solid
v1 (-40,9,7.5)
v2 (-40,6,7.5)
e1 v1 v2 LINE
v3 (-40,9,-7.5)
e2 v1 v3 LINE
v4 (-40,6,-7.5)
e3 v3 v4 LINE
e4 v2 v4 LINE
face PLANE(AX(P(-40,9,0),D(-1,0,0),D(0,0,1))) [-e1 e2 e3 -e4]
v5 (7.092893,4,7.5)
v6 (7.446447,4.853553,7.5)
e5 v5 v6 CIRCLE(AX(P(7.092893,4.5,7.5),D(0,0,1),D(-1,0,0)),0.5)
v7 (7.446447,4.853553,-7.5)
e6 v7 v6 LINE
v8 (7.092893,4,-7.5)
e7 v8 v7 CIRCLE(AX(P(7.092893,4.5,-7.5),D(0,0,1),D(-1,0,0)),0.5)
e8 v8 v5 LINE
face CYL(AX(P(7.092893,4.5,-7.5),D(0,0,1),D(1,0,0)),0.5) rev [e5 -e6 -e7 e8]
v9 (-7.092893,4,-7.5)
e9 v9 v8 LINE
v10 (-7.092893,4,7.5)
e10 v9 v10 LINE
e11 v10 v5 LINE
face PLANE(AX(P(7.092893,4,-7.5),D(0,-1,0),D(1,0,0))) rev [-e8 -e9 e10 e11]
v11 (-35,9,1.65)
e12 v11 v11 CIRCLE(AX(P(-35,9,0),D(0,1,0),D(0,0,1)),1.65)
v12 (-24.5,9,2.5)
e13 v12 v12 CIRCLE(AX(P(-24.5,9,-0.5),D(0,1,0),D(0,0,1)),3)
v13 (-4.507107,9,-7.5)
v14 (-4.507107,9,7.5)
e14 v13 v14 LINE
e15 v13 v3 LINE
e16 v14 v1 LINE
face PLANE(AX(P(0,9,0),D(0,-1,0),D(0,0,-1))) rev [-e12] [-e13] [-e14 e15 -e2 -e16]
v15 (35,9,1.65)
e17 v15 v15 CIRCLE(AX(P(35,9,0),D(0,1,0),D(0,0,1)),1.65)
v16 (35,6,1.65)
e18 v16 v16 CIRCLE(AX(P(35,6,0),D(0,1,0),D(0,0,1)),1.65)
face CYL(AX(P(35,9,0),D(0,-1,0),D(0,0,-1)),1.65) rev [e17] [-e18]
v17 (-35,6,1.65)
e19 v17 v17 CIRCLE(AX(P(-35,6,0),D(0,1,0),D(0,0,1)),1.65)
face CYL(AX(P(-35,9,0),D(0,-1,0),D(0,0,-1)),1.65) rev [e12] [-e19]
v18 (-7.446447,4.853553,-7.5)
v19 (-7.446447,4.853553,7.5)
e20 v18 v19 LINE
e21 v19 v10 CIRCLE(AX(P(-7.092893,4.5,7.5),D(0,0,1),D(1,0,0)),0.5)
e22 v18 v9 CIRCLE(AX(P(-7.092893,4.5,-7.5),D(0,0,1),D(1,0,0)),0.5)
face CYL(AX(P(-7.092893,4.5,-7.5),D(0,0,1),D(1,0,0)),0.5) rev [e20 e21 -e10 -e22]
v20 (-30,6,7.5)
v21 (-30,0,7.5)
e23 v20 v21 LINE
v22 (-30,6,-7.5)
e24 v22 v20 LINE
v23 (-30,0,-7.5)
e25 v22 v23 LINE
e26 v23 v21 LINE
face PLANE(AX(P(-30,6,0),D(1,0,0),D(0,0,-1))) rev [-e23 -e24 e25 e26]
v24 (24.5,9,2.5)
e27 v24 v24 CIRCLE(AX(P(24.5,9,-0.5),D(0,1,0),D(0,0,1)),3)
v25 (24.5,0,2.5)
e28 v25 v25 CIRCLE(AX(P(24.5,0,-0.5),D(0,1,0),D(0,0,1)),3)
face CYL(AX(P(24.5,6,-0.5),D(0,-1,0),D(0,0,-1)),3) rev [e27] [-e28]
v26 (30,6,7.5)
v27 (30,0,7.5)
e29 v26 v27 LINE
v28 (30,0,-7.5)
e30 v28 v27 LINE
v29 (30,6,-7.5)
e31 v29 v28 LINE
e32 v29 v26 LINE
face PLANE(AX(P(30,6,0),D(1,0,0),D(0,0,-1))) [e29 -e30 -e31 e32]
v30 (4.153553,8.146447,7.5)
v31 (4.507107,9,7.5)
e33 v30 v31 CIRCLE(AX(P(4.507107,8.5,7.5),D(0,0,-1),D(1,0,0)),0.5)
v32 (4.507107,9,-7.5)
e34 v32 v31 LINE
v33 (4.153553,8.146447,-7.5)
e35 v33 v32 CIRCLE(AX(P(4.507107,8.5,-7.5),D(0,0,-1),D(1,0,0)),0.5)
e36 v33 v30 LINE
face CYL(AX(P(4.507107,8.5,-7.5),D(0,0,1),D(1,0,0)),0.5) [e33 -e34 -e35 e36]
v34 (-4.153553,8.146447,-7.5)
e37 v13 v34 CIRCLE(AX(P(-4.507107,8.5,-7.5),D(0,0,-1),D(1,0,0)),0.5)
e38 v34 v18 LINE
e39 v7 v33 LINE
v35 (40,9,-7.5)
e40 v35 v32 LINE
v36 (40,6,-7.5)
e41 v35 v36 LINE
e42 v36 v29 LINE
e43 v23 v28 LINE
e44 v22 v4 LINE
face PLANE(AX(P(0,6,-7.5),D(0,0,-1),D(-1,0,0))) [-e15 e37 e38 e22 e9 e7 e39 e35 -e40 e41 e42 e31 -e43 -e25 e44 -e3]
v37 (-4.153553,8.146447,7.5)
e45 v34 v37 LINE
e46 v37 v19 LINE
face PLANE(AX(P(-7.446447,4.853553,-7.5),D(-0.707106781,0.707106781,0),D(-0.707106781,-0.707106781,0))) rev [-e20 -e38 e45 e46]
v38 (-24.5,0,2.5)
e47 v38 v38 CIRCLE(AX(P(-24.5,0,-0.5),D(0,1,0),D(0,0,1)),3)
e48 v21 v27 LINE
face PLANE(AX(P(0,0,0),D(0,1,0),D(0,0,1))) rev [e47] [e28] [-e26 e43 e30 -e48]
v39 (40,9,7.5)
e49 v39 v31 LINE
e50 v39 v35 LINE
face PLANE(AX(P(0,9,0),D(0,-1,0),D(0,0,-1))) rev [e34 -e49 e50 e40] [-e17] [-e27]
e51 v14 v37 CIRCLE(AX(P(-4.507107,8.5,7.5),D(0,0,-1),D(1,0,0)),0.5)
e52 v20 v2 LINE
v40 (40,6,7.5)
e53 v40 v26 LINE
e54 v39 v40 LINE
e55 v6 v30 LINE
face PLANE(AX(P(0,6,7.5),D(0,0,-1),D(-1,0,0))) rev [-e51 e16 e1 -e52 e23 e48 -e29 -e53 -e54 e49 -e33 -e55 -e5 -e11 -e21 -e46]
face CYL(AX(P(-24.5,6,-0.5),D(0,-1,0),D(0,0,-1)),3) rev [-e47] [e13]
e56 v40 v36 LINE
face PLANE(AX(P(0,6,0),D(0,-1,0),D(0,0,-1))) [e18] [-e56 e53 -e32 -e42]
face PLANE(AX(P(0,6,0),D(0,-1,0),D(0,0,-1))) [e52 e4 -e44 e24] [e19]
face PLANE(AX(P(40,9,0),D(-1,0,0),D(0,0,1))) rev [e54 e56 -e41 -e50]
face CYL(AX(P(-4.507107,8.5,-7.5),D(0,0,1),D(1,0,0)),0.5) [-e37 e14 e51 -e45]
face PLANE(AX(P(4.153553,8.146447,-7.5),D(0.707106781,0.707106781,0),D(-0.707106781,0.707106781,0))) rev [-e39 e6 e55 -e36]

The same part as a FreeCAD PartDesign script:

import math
import FreeCAD as App
import Part
import Sketcher

V = App.Vector

doc = App.newDocument("Part")
params = doc.addObject("Spreadsheet::Sheet", "Params")
for row, (alias, value) in enumerate([
    ("sketch1_diameter", "6 mm"),
    ("sketch1_width", "60 mm"),
    ("sketch1_height", "15 mm"),
    ("pad1_length", "6 mm"),
    ("sketch2_diameter", "6 mm"),
    ("sketch2_diameter2", "3.3 mm"),
    ("sketch2_width", "80 mm"),
    ("sketch2_height", "15 mm"),
    ("pad2_length", "3 mm"),
    ("sketch3_radius", "0.5 mm"),
], start=1):
    params.set(f"A{row}", alias)
    params.set(f"B{row}", "=" + value)
    params.setAlias(f"B{row}", alias)

body = doc.addObject("PartDesign::Body", "Body")

# Sketch on XZ plane
sketch1 = body.newObject("Sketcher::SketchObject", "Sketch")
sketch1.AttachmentSupport = (doc.getObject("XZ_Plane"), [""])
sketch1.MapMode = "FlatFace"
sketch1.addGeometry(Part.LineSegment(V(-30, -7.5, 0), V(-30, 7.5, 0)), False)
sketch1.addGeometry(Part.LineSegment(V(-30, 7.5, 0), V(30, 7.5, 0)), False)
sketch1.addGeometry(Part.LineSegment(V(30, 7.5, 0), V(30, -7.5, 0)), False)
sketch1.addGeometry(Part.LineSegment(V(30, -7.5, 0), V(-30, -7.5, 0)), False)
sketch1.addGeometry(Part.Circle(V(-24.5, -0.5, 0), V(0, 0, 1), 3), False)
sketch1.addGeometry(Part.Circle(V(24.5, -0.5, 0), V(0, 0, 1), 3), False)
sketch1.addConstraint(Sketcher.Constraint("Coincident", 0, 2, 1, 1))
sketch1.addConstraint(Sketcher.Constraint("Coincident", 1, 2, 2, 1))
sketch1.addConstraint(Sketcher.Constraint("Coincident", 2, 2, 3, 1))
sketch1.addConstraint(Sketcher.Constraint("Coincident", 3, 2, 0, 1))
sketch1.addConstraint(Sketcher.Constraint("Vertical", 0))
sketch1.addConstraint(Sketcher.Constraint("Horizontal", 1))
sketch1.addConstraint(Sketcher.Constraint("Vertical", 2))
sketch1.addConstraint(Sketcher.Constraint("Horizontal", 3))
sketch1.addConstraint(Sketcher.Constraint("Equal", 4, 5))
sketch1.addConstraint(Sketcher.Constraint("Symmetric", 0, 2, 2, 2, -1, 1))
sketch1.addConstraint(Sketcher.Constraint("Symmetric", 4, 3, 5, 3, -2))
sketch1.addConstraint(Sketcher.Constraint("Diameter", 4, 6.0))
sketch1.addConstraint(Sketcher.Constraint("DistanceX", 1, 1, 1, 2, 60.0))
sketch1.addConstraint(Sketcher.Constraint("DistanceY", 0, 1, 0, 2, 15.0))
sketch1.addConstraint(Sketcher.Constraint("DistanceX", 4, 3, 5, 3, 49.0))
sketch1.addConstraint(Sketcher.Constraint("DistanceY", 4, 3, 0, 2, 8.0))
sketch1.setExpression("Constraints[11]", "Params.sketch1_diameter")
sketch1.setExpression("Constraints[12]", "Params.sketch1_width")
sketch1.setExpression("Constraints[13]", "Params.sketch1_height")
pad1 = body.newObject("PartDesign::Pad", "Pad")
pad1.Profile = sketch1
pad1.setExpression("Length", "Params.pad1_length")
pad1.Reversed = True

# Sketch on XZ plane
sketch2 = body.newObject("Sketcher::SketchObject", "Sketch001")
sketch2.AttachmentSupport = (doc.getObject("XZ_Plane"), [""])
sketch2.MapMode = "FlatFace"
sketch2.AttachmentOffset = App.Placement(V(0, 0, -6), App.Rotation())
sketch2.addGeometry(Part.LineSegment(V(-40, -7.5, 0), V(-40, 7.5, 0)), False)
sketch2.addGeometry(Part.LineSegment(V(-40, 7.5, 0), V(40, 7.5, 0)), False)
sketch2.addGeometry(Part.LineSegment(V(40, 7.5, 0), V(40, -7.5, 0)), False)
sketch2.addGeometry(Part.LineSegment(V(40, -7.5, 0), V(-40, -7.5, 0)), False)
sketch2.addGeometry(Part.Circle(V(-35, 0, 0), V(0, 0, 1), 1.6), False)
sketch2.addGeometry(Part.Circle(V(35, 0, 0), V(0, 0, 1), 1.6), False)
sketch2.addGeometry(Part.Circle(V(-24.5, -0.5, 0), V(0, 0, 1), 3), False)
sketch2.addGeometry(Part.Circle(V(24.5, -0.5, 0), V(0, 0, 1), 3), False)
sketch2.addConstraint(Sketcher.Constraint("Coincident", 0, 2, 1, 1))
sketch2.addConstraint(Sketcher.Constraint("Coincident", 1, 2, 2, 1))
sketch2.addConstraint(Sketcher.Constraint("Coincident", 2, 2, 3, 1))
sketch2.addConstraint(Sketcher.Constraint("Coincident", 3, 2, 0, 1))
sketch2.addConstraint(Sketcher.Constraint("Vertical", 0))
sketch2.addConstraint(Sketcher.Constraint("Horizontal", 1))
sketch2.addConstraint(Sketcher.Constraint("Vertical", 2))
sketch2.addConstraint(Sketcher.Constraint("Horizontal", 3))
sketch2.addConstraint(Sketcher.Constraint("Equal", 4, 5))
sketch2.addConstraint(Sketcher.Constraint("Equal", 6, 7))
sketch2.addConstraint(Sketcher.Constraint("Symmetric", 4, 3, 5, 3, -1, 1))
sketch2.addConstraint(Sketcher.Constraint("Symmetric", 0, 2, 2, 2, -1, 1))
sketch2.addConstraint(Sketcher.Constraint("Symmetric", 6, 3, 7, 3, -2))
sketch2.addConstraint(Sketcher.Constraint("PointOnObject", 4, 3, -1))
sketch2.addConstraint(Sketcher.Constraint("Diameter", 6, 6.0))
sketch2.addConstraint(Sketcher.Constraint("Diameter", 4, 3.3))
sketch2.addConstraint(Sketcher.Constraint("DistanceX", 1, 1, 1, 2, 80.0))
sketch2.addConstraint(Sketcher.Constraint("DistanceY", 0, 1, 0, 2, 15.0))
sketch2.addConstraint(Sketcher.Constraint("DistanceX", 4, 3, -1, 1, 35.0))
sketch2.addConstraint(Sketcher.Constraint("DistanceX", 6, 3, 7, 3, 49.0))
sketch2.addConstraint(Sketcher.Constraint("DistanceY", 6, 3, 0, 2, 8.0))
sketch2.setExpression("Constraints[14]", "Params.sketch2_diameter")
sketch2.setExpression("Constraints[15]", "Params.sketch2_diameter2")
sketch2.setExpression("Constraints[16]", "Params.sketch2_width")
sketch2.setExpression("Constraints[17]", "Params.sketch2_height")
pad2 = body.newObject("PartDesign::Pad", "Pad001")
pad2.Profile = sketch2
pad2.setExpression("Length", "Params.pad2_length")
pad2.Reversed = True

# Sketch on XY plane
sketch3 = body.newObject("Sketcher::SketchObject", "Sketch002")
sketch3.AttachmentSupport = (doc.getObject("XY_Plane"), [""])
sketch3.MapMode = "FlatFace"
sketch3.addGeometry(Part.LineSegment(V(7.4, 4.9, 0), V(4.2, 8.1, 0)), False)
sketch3.addGeometry(Part.ArcOfCircle(Part.Circle(V(4.5, 8.5, 0), V(0, 0, 1), 0.5), math.radians(90), math.radians(225)), False)
sketch3.addGeometry(Part.LineSegment(V(4.5, 9, 0), V(-4.5, 9, 0)), False)
sketch3.addGeometry(Part.ArcOfCircle(Part.Circle(V(-4.5, 8.5, 0), V(0, 0, 1), 0.5), math.radians(-45), math.radians(90)), False)
sketch3.addGeometry(Part.LineSegment(V(-4.2, 8.1, 0), V(-7.4, 4.9, 0)), False)
sketch3.addGeometry(Part.ArcOfCircle(Part.Circle(V(-7.1, 4.5, 0), V(0, 0, 1), 0.5), math.radians(135), math.radians(270)), False)
sketch3.addGeometry(Part.LineSegment(V(-7.1, 4, 0), V(7.1, 4, 0)), False)
sketch3.addGeometry(Part.ArcOfCircle(Part.Circle(V(7.1, 4.5, 0), V(0, 0, 1), 0.5), math.radians(-90), math.radians(45)), False)
sketch3.addConstraint(Sketcher.Constraint("Tangent", 0, 2, 1, 2))
sketch3.addConstraint(Sketcher.Constraint("Tangent", 1, 1, 2, 1))
sketch3.addConstraint(Sketcher.Constraint("Tangent", 2, 2, 3, 2))
sketch3.addConstraint(Sketcher.Constraint("Tangent", 3, 1, 4, 1))
sketch3.addConstraint(Sketcher.Constraint("Tangent", 4, 2, 5, 1))
sketch3.addConstraint(Sketcher.Constraint("Tangent", 5, 2, 6, 1))
sketch3.addConstraint(Sketcher.Constraint("Tangent", 6, 2, 7, 1))
sketch3.addConstraint(Sketcher.Constraint("Tangent", 7, 2, 0, 1))
sketch3.addConstraint(Sketcher.Constraint("Horizontal", 2))
sketch3.addConstraint(Sketcher.Constraint("Horizontal", 6))
sketch3.addConstraint(Sketcher.Constraint("Equal", 1, 3))
sketch3.addConstraint(Sketcher.Constraint("Equal", 3, 5))
sketch3.addConstraint(Sketcher.Constraint("Equal", 5, 7))
sketch3.addConstraint(Sketcher.Constraint("Symmetric", 0, 2, 3, 1, -2))
sketch3.addConstraint(Sketcher.Constraint("Perpendicular", 0, 4))
sketch3.addConstraint(Sketcher.Constraint("Radius", 1, 0.5))
sketch3.addConstraint(Sketcher.Constraint("DistanceY", -1, 1, 1, 1, 9.0))
sketch3.addConstraint(Sketcher.Constraint("DistanceY", -1, 1, 5, 2, 4.0))
sketch3.addConstraint(Sketcher.Constraint("DistanceX", 5, 3, 1, 3, 11.6))
sketch3.setExpression("Constraints[15]", "Params.sketch3_radius")
pocket1 = body.newObject("PartDesign::Pocket", "Pocket")
pocket1.Profile = sketch3
pocket1.Type = "ThroughAll"
pocket1.Midplane = True

doc.recompute()
